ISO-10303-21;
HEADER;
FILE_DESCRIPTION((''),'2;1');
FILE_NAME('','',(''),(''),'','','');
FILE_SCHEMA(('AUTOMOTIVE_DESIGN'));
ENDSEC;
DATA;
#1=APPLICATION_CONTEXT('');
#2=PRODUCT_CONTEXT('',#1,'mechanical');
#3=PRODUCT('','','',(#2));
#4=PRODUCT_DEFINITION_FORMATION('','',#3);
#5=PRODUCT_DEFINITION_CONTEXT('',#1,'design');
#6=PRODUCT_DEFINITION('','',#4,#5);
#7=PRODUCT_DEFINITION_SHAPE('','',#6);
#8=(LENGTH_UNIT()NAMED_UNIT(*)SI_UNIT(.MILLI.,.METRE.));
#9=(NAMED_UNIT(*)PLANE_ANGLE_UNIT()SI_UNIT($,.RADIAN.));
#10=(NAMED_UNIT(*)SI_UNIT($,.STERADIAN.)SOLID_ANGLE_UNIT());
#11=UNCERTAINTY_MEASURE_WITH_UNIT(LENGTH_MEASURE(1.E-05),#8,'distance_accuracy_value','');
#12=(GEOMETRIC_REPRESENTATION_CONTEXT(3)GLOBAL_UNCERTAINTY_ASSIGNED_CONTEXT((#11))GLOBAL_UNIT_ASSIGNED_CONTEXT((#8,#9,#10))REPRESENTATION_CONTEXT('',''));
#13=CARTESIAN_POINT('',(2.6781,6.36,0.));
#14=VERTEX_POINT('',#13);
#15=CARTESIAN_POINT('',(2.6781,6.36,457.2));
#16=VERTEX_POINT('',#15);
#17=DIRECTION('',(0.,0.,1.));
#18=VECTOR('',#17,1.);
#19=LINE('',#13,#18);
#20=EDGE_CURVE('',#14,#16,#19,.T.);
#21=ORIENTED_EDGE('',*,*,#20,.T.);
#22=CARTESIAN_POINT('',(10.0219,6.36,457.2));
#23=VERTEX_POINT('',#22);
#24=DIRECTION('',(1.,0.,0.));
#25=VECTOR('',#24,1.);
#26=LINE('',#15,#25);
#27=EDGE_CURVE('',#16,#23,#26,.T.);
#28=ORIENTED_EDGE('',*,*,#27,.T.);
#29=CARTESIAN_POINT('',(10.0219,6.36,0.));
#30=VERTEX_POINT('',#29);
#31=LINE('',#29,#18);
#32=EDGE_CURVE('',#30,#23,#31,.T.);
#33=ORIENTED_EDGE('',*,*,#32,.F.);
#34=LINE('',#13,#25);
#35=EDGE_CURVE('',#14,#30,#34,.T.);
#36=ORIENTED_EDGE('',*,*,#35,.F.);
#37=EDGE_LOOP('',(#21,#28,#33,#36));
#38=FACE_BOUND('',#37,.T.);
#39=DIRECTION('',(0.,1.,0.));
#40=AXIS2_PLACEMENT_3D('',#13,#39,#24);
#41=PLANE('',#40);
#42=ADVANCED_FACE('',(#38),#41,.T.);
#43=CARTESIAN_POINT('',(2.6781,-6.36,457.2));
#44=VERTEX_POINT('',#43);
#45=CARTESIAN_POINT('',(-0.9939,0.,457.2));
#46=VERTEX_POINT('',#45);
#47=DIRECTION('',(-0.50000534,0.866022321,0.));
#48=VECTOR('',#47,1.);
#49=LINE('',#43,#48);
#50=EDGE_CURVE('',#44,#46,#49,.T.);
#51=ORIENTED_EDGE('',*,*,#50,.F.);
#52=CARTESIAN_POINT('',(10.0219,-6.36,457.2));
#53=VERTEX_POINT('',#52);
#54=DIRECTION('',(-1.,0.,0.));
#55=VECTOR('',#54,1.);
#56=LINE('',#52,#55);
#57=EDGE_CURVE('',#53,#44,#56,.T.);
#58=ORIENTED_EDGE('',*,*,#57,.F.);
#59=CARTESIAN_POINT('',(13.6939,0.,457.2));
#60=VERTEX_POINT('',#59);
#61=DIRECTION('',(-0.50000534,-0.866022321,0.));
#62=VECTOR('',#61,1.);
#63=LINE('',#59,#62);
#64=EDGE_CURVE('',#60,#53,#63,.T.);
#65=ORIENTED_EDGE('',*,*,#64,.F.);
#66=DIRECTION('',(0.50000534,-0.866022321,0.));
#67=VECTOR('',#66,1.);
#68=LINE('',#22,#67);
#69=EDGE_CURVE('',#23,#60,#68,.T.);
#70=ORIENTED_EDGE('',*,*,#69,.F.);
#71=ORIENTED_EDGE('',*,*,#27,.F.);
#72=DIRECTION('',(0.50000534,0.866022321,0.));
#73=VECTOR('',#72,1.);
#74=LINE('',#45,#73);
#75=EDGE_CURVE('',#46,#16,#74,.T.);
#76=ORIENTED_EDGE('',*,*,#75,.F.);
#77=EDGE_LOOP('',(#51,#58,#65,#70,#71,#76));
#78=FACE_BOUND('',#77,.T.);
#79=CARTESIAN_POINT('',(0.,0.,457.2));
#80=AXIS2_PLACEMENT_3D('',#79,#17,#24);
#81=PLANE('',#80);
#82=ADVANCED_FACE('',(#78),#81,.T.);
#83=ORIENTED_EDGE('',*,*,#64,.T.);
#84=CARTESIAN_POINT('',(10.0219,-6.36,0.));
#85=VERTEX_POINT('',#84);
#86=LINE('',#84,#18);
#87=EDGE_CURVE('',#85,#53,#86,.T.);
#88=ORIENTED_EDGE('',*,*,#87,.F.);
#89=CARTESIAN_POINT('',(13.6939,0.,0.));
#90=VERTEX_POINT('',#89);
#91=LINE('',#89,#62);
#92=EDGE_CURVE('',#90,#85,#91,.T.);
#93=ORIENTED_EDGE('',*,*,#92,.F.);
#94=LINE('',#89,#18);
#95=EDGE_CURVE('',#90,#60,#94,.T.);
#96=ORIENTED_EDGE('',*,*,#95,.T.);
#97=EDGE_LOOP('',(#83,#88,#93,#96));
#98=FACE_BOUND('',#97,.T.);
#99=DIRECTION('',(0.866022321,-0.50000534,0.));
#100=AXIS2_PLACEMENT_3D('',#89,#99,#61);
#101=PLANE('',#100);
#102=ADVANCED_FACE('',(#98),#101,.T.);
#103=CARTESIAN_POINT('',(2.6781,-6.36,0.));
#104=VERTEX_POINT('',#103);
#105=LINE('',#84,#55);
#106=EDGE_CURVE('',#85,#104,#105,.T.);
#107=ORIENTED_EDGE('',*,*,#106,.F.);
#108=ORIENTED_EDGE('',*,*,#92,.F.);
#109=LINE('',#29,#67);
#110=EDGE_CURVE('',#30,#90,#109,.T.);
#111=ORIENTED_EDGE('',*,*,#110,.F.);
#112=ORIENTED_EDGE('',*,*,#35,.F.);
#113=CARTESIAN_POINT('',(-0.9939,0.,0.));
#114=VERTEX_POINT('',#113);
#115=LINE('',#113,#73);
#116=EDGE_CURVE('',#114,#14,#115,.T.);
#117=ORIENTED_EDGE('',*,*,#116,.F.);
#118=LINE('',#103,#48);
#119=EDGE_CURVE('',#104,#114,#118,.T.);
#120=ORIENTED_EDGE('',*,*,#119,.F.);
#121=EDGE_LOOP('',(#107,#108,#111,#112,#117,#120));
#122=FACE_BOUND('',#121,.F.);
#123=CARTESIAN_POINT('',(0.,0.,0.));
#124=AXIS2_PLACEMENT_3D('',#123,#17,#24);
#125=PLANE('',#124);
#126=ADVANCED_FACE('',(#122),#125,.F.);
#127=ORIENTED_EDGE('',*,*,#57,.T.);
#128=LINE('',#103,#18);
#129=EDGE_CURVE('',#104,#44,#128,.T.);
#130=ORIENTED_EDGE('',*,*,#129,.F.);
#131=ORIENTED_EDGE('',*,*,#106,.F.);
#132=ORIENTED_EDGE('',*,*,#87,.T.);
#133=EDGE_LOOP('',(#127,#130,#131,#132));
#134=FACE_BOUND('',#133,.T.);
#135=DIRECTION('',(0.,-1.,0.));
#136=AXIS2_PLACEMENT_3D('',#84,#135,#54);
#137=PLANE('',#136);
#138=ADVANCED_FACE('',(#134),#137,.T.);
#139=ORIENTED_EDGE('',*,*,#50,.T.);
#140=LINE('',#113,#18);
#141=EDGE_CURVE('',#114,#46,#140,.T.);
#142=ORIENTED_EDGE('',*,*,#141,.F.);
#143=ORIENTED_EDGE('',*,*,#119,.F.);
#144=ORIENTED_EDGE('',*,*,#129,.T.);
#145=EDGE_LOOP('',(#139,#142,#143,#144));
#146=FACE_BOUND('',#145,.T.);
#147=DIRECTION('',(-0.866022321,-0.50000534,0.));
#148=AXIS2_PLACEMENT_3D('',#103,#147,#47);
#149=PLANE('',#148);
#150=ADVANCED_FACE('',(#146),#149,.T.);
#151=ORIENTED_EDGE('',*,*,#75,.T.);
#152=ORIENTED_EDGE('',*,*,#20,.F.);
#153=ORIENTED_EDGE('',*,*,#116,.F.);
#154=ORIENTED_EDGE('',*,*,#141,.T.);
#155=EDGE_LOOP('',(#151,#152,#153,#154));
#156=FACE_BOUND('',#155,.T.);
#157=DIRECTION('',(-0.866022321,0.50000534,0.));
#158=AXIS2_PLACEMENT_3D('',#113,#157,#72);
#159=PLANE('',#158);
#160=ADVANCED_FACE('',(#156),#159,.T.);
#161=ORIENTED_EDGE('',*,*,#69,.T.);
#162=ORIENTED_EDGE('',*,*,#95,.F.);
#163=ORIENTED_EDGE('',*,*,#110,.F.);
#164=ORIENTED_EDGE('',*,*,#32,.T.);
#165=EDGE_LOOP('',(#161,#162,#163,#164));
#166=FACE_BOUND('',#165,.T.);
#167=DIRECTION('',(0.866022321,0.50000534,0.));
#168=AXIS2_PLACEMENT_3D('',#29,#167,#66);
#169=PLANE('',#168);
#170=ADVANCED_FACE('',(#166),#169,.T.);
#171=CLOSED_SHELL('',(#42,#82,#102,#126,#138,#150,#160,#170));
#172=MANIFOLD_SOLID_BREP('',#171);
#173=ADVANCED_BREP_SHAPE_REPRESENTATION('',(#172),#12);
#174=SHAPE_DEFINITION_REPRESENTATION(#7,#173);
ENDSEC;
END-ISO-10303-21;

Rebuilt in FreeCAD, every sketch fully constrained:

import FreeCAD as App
import Part
import Sketcher

V = App.Vector
Q = App.Units.Quantity

doc = App.newDocument("Part")
body = doc.addObject("PartDesign::Body", "Body")

# Sketch on XY plane
sketch1 = body.newObject("Sketcher::SketchObject", "Sketch")
sketch1.AttachmentSupport = (doc.getObject("XY_Plane"), [""])
sketch1.MapMode = "FlatFace"
sketch1.addGeometry([
    Part.LineSegment(V(10, 6, 0), V(3, 6, 0)),  # 0
    Part.LineSegment(V(3, 6, 0), V(-1, 0, 0)),  # 1
    Part.LineSegment(V(-1, 0, 0), V(3, -6, 0)),  # 2
    Part.LineSegment(V(3, -6, 0), V(10, -6, 0)),  # 3
    Part.LineSegment(V(10, -6, 0), V(14, 0, 0)),  # 4
    Part.LineSegment(V(14, 0, 0), V(10, 6, 0)),  # 5
], False)
sketch1.addConstraint([
    Sketcher.Constraint("Coincident", 0, 2, 1, 1),
    Sketcher.Constraint("Coincident", 1, 2, 2, 1),
    Sketcher.Constraint("Coincident", 2, 2, 3, 1),
    Sketcher.Constraint("Coincident", 3, 2, 4, 1),
    Sketcher.Constraint("Coincident", 4, 2, 5, 1),
    Sketcher.Constraint("Coincident", 5, 2, 0, 1),
    Sketcher.Constraint("Horizontal", 0),
    Sketcher.Constraint("Horizontal", 3),
    Sketcher.Constraint("Symmetric", 0, 2, 2, 2, -1),
    Sketcher.Constraint("PointOnObject", 1, 2, -1),
    Sketcher.Constraint("PointOnObject", 4, 2, -1),
    Sketcher.Constraint("Parallel", 1, 4),
    Sketcher.Constraint("Parallel", 2, 5),
    Sketcher.Constraint("Angle", 1, Q("-120.0004 deg")),
    Sketcher.Constraint("DistanceX", 0, 2, 0, 1, 7.3438),
    Sketcher.Constraint("DistanceY", -1, 1, 0, 2, Q("0.2504 in")),
    Sketcher.Constraint("DistanceX", -1, 1, 0, 2, 2.678),
])
pad1 = body.newObject("PartDesign::Pad", "Pad")
pad1.Profile = sketch1
pad1.Length = Q("18 in")

doc.recompute()
